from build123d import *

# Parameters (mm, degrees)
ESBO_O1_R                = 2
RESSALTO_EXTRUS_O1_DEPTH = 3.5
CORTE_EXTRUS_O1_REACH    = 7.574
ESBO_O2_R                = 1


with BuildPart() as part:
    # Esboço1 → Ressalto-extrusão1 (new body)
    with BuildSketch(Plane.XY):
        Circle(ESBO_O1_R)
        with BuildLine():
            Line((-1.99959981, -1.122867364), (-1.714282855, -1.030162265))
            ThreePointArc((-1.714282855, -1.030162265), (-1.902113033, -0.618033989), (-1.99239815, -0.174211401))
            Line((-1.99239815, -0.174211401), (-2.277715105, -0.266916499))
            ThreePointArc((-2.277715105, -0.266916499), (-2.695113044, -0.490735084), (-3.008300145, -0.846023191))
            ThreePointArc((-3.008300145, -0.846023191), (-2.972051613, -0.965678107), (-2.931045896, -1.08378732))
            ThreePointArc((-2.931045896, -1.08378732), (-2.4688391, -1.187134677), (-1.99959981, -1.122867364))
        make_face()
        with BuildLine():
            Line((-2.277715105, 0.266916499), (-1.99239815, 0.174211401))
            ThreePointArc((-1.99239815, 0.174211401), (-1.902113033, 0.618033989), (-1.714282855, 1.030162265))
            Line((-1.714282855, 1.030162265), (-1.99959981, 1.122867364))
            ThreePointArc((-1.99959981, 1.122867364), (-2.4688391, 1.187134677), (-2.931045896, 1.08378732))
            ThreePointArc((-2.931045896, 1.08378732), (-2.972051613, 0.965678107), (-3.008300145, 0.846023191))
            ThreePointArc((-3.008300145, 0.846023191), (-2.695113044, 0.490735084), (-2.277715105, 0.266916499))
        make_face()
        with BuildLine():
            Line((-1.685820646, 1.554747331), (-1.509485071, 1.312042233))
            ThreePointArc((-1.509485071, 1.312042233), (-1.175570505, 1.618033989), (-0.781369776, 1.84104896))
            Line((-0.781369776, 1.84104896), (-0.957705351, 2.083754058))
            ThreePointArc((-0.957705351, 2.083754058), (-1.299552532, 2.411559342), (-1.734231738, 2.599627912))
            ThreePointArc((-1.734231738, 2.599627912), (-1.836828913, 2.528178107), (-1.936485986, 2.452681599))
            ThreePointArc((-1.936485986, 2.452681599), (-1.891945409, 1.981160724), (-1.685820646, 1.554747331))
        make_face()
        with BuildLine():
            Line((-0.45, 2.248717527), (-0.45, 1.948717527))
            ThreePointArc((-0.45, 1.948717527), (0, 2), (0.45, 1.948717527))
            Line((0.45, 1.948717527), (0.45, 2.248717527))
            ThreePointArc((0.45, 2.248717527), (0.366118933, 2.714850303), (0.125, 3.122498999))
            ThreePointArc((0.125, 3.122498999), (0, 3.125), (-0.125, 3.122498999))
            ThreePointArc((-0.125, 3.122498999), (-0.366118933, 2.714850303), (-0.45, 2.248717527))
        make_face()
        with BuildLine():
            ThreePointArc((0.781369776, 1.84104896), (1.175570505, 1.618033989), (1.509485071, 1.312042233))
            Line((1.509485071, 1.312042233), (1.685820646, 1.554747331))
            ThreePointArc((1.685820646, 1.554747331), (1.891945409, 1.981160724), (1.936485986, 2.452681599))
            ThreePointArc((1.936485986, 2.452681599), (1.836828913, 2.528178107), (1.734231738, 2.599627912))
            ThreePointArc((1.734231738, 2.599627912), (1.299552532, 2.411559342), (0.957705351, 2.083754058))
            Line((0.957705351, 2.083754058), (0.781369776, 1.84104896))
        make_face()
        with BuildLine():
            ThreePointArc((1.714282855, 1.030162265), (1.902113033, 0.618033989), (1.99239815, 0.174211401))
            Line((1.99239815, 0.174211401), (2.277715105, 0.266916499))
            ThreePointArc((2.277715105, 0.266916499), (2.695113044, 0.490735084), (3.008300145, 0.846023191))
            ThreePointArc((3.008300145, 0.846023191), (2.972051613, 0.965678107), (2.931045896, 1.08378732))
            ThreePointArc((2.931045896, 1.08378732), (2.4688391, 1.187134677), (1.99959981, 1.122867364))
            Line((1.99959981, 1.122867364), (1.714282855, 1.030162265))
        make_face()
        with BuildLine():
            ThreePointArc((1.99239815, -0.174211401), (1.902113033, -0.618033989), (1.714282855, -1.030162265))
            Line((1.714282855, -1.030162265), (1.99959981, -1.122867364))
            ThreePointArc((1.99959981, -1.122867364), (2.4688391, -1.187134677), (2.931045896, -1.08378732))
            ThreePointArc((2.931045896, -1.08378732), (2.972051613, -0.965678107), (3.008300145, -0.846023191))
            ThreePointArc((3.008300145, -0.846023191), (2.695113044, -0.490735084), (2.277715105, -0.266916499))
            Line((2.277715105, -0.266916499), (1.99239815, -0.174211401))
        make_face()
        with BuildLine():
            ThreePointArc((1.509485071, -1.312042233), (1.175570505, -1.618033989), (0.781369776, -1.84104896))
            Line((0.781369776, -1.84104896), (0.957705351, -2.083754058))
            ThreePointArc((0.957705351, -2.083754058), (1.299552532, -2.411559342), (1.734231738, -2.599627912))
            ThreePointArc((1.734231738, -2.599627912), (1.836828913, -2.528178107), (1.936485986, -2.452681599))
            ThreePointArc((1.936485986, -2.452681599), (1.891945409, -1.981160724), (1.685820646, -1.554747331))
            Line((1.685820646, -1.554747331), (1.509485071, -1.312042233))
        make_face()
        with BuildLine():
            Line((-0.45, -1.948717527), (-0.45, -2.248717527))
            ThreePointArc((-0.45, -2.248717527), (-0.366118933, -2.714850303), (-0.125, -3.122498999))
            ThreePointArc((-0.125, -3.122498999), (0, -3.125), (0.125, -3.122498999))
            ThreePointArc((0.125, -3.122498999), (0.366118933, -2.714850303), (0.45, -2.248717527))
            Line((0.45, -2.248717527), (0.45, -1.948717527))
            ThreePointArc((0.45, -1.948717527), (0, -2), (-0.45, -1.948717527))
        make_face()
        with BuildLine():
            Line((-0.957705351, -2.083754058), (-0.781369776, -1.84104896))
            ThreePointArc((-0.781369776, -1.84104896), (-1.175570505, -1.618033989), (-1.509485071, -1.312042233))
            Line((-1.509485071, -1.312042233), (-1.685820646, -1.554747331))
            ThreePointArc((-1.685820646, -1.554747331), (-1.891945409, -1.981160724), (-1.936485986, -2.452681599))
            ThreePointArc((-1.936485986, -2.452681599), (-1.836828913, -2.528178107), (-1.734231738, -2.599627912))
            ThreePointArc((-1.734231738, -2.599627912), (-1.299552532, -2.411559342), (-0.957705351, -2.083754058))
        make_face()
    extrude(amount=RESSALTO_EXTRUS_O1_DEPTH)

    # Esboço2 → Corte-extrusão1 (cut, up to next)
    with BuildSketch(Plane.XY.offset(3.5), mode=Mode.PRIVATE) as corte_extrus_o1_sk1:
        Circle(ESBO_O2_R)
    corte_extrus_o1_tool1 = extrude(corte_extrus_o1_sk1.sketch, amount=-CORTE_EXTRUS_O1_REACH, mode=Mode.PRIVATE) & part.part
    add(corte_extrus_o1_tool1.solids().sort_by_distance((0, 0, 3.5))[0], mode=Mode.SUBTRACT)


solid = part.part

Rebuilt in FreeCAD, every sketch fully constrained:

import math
import FreeCAD as App
import Part
import Sketcher

V = App.Vector
Q = App.Units.Quantity

doc = App.newDocument("Part")
params = doc.addObject("Spreadsheet::Sheet", "Params")
for row, (alias, value) in enumerate([
    ("sketch1_radius", "2 mm"),
    ("sketch1_height", "0.3 mm"),
    ("sketch1_length", "0.3 mm"),
    ("pad1_length", "3.5 mm"),
    ("sketch2_diameter", "2 mm"),
], start=1):
    params.set(f"A{row}", alias)
    params.set(f"B{row}", "=" + value)
    params.setAlias(f"B{row}", alias)

body = doc.addObject("PartDesign::Body", "Body")

sketch1 = body.newObject("Sketcher::SketchObject", "Sketch")
sketch1.AttachmentSupport = (doc.getObject("XY_Plane"), [""])
sketch1.MapMode = "FlatFace"
sketch1.addGeometry([
    Part.LineSegment(V(-1.992398, -0.174211, 0), V(-2.277715, -0.266916, 0)),
    Part.ArcOfCircle(Part.Circle(V(-1.864527, -1.53858, 0), V(0, 0, 1), 1.337106), math.radians(108), math.radians(148.805021)),
    Part.ArcOfCircle(Part.Circle(V(0.000001, 0, 0), V(0, 0, 1), 3.125001), math.radians(-164.292442), math.radians(-159.707558)),
    Part.ArcOfCircle(Part.Circle(V(-2.412788, 0.148796, 0), V(0, 0, 1), 1.337106), math.radians(-112.805021), math.radians(-72)),
    Part.LineSegment(V(-1.9996, -1.122867, 0), V(-1.714283, -1.030162, 0)),
    Part.ArcOfCircle(Part.Circle(V(0, 0, 0), V(0, 0, 1), 2), math.radians(-148.997122), math.radians(-139.002878)),
    Part.LineSegment(V(-1.509485, -1.312042, 0), V(-1.685821, -1.554747, 0)),
    Part.ArcOfCircle(Part.Circle(V(-0.604079, -2.340679, 0), V(0, 0, 1), 1.337106), math.radians(144), math.radians(184.805021)),
    Part.ArcOfCircle(Part.Circle(V(0.000001, 0.000001, 0), V(0, 0, 1), 3.125001), math.radians(-128.292442), math.radians(-123.707558)),
    Part.ArcOfCircle(Part.Circle(V(-2.039447, -1.297823, 0), V(0, 0, 1), 1.337106), math.radians(-76.805021), math.radians(-36)),
    Part.LineSegment(V(-0.957705, -2.083754, 0), V(-0.78137, -1.841049, 0)),
    Part.ArcOfCircle(Part.Circle(V(0, 0, 0), V(0, 0, 1), 2), math.radians(-112.997122), math.radians(-103.002878)),
    Part.LineSegment(V(-0.45, -1.948718, 0), V(-0.45, -2.248718, 0)),
    Part.ArcOfCircle(Part.Circle(V(0.887106, -2.248718, 0), V(0, 0, 1), 1.337106), math.radians(180), math.radians(220.805021)),
    Part.ArcOfCircle(Part.Circle(V(0, 0, 0), V(0, 0, 1), 3.125), math.radians(-92.292443), math.radians(-87.707557)),
    Part.ArcOfCircle(Part.Circle(V(-0.887106, -2.248718, 0), V(0, 0, 1), 1.337106), math.radians(-40.805021), math.radians(0)),
    Part.LineSegment(V(0.45, -2.248718, 0), V(0.45, -1.948718, 0)),
    Part.ArcOfCircle(Part.Circle(V(0, 0, 0), V(0, 0, 1), 2), math.radians(-76.997122), math.radians(-67.002878)),
    Part.LineSegment(V(0.78137, -1.841049, 0), V(0.957705, -2.083754, 0)),
    Part.ArcOfCircle(Part.Circle(V(2.039447, -1.297823, 0), V(0, 0, 1), 1.337106), math.radians(-144), math.radians(-103.194979)),
    Part.ArcOfCircle(Part.Circle(V(-0.000001, 0.000001, 0), V(0, 0, 1), 3.125001), math.radians(-56.292442), math.radians(-51.707558)),
    Part.ArcOfCircle(Part.Circle(V(0.604079, -2.340679, 0), V(0, 0, 1), 1.337106), math.radians(-4.805021), math.radians(36)),
    Part.LineSegment(V(1.685821, -1.554747, 0), V(1.509485, -1.312042, 0)),
    Part.ArcOfCircle(Part.Circle(V(0, 0, 0), V(0, 0, 1), 2), math.radians(-40.997122), math.radians(-31.002878)),
    Part.LineSegment(V(1.714283, -1.030162, 0), V(1.9996, -1.122867, 0)),
    Part.ArcOfCircle(Part.Circle(V(2.412788, 0.148796, 0), V(0, 0, 1), 1.337106), math.radians(-108), math.radians(-67.194979)),
    Part.ArcOfCircle(Part.Circle(V(-0.000001, 0, 0), V(0, 0, 1), 3.125001), math.radians(-20.292442), math.radians(-15.707558)),
    Part.ArcOfCircle(Part.Circle(V(1.864527, -1.53858, 0), V(0, 0, 1), 1.337106), math.radians(31.194979), math.radians(72)),
    Part.LineSegment(V(2.277715, -0.266916, 0), V(1.992398, -0.174211, 0)),
    Part.ArcOfCircle(Part.Circle(V(0, 0, 0), V(0, 0, 1), 2), math.radians(-4.997122), math.radians(4.997122)),
    Part.LineSegment(V(1.992398, 0.174211, 0), V(2.277715, 0.266916, 0)),
    Part.ArcOfCircle(Part.Circle(V(1.864527, 1.53858, 0), V(0, 0, 1), 1.337106), math.radians(-72), math.radians(-31.194979)),
    Part.ArcOfCircle(Part.Circle(V(-0.000001, 0, 0), V(0, 0, 1), 3.125001), math.radians(15.707558), math.radians(20.292442)),
    Part.ArcOfCircle(Part.Circle(V(2.412788, -0.148796, 0), V(0, 0, 1), 1.337106), math.radians(67.194979), math.radians(108)),
    Part.LineSegment(V(1.9996, 1.122867, 0), V(1.714283, 1.030162, 0)),
    Part.ArcOfCircle(Part.Circle(V(0, 0, 0), V(0, 0, 1), 2), math.radians(31.002878), math.radians(40.997122)),
    Part.LineSegment(V(1.509485, 1.312042, 0), V(1.685821, 1.554747, 0)),
    Part.ArcOfCircle(Part.Circle(V(0.604079, 2.340679, 0), V(0, 0, 1), 1.337106), math.radians(-36), math.radians(4.805021)),
    Part.ArcOfCircle(Part.Circle(V(-0.000001, -0.000001, 0), V(0, 0, 1), 3.125001), math.radians(51.707558), math.radians(56.292442)),
    Part.ArcOfCircle(Part.Circle(V(2.039447, 1.297823, 0), V(0, 0, 1), 1.337106), math.radians(103.194979), math.radians(144)),
    Part.LineSegment(V(0.957705, 2.083754, 0), V(0.78137, 1.841049, 0)),
    Part.ArcOfCircle(Part.Circle(V(0, 0, 0), V(0, 0, 1), 2), math.radians(67.002878), math.radians(76.997122)),
    Part.LineSegment(V(0.45, 1.948718, 0), V(0.45, 2.248718, 0)),
    Part.ArcOfCircle(Part.Circle(V(-0.887106, 2.248718, 0), V(0, 0, 1), 1.337106), math.radians(0), math.radians(40.805021)),
    Part.ArcOfCircle(Part.Circle(V(0, 0, 0), V(0, 0, 1), 3.125), math.radians(87.707557), math.radians(92.292443)),
    Part.ArcOfCircle(Part.Circle(V(0.887106, 2.248718, 0), V(0, 0, 1), 1.337106), math.radians(139.194979), math.radians(180)),
    Part.LineSegment(V(-0.45, 2.248718, 0), V(-0.45, 1.948718, 0)),
    Part.ArcOfCircle(Part.Circle(V(0, 0, 0), V(0, 0, 1), 2), math.radians(103.002878), math.radians(112.997122)),
    Part.LineSegment(V(-0.78137, 1.841049, 0), V(-0.957705, 2.083754, 0)),
    Part.ArcOfCircle(Part.Circle(V(-2.039447, 1.297823, 0), V(0, 0, 1), 1.337106), math.radians(36), math.radians(76.805021)),
    Part.ArcOfCircle(Part.Circle(V(0.000001, -0.000001, 0), V(0, 0, 1), 3.125001), math.radians(123.707558), math.radians(128.292442)),
    Part.ArcOfCircle(Part.Circle(V(-0.604079, 2.340679, 0), V(0, 0, 1), 1.337106), math.radians(175.194979), math.radians(216)),
    Part.LineSegment(V(-1.685821, 1.554747, 0), V(-1.509485, 1.312042, 0)),
    Part.ArcOfCircle(Part.Circle(V(0, 0, 0), V(0, 0, 1), 2), math.radians(139.002878), math.radians(148.997122)),
    Part.LineSegment(V(-1.714283, 1.030162, 0), V(-1.9996, 1.122867, 0)),
    Part.ArcOfCircle(Part.Circle(V(-2.412788, -0.148796, 0), V(0, 0, 1), 1.337106), math.radians(72), math.radians(112.805021)),
    Part.ArcOfCircle(Part.Circle(V(0.000001, 0, 0), V(0, 0, 1), 3.125001), math.radians(159.707558), math.radians(164.292442)),
    Part.ArcOfCircle(Part.Circle(V(-1.864527, 1.53858, 0), V(0, 0, 1), 1.337106), math.radians(-148.805021), math.radians(-108)),
    Part.LineSegment(V(-2.277715, 0.266916, 0), V(-1.992398, 0.174211, 0)),
    Part.ArcOfCircle(Part.Circle(V(0, 0, 0), V(0, 0, 1), 2), math.radians(175.002878), math.radians(184.997122)),
], False)
sketch1.addConstraint([
    Sketcher.Constraint("Tangent", 0, 2, 1, 1),
    Sketcher.Constraint("Coincident", 1, 2, 2, 1),
    Sketcher.Constraint("Coincident", 2, 2, 3, 1),
    Sketcher.Constraint("Tangent", 3, 2, 4, 1),
    Sketcher.Constraint("Coincident", 4, 2, 5, 1),
    Sketcher.Constraint("Coincident", 5, 2, 6, 1),
    Sketcher.Constraint("Tangent", 6, 2, 7, 1),
    Sketcher.Constraint("Coincident", 7, 2, 8, 1),
    Sketcher.Constraint("Coincident", 8, 2, 9, 1),
    Sketcher.Constraint("Tangent", 9, 2, 10, 1),
    Sketcher.Constraint("Coincident", 10, 2, 11, 1),
    Sketcher.Constraint("Coincident", 11, 2, 12, 1),
    Sketcher.Constraint("Tangent", 12, 2, 13, 1),
    Sketcher.Constraint("Coincident", 13, 2, 14, 1),
    Sketcher.Constraint("Coincident", 14, 2, 15, 1),
    Sketcher.Constraint("Tangent", 15, 2, 16, 1),
    Sketcher.Constraint("Coincident", 16, 2, 17, 1),
    Sketcher.Constraint("Coincident", 17, 2, 18, 1),
    Sketcher.Constraint("Tangent", 18, 2, 19, 1),
    Sketcher.Constraint("Coincident", 19, 2, 20, 1),
    Sketcher.Constraint("Coincident", 20, 2, 21, 1),
    Sketcher.Constraint("Tangent", 21, 2, 22, 1),
    Sketcher.Constraint("Coincident", 22, 2, 23, 1),
    Sketcher.Constraint("Coincident", 23, 2, 24, 1),
    Sketcher.Constraint("Tangent", 24, 2, 25, 1),
    Sketcher.Constraint("Coincident", 25, 2, 26, 1),
    Sketcher.Constraint("Coincident", 26, 2, 27, 1),
    Sketcher.Constraint("Tangent", 27, 2, 28, 1),
    Sketcher.Constraint("Coincident", 28, 2, 29, 1),
    Sketcher.Constraint("Coincident", 29, 2, 30, 1),
    Sketcher.Constraint("Tangent", 30, 2, 31, 1),
    Sketcher.Constraint("Coincident", 31, 2, 32, 1),
    Sketcher.Constraint("Coincident", 32, 2, 33, 1),
    Sketcher.Constraint("Tangent", 33, 2, 34, 1),
    Sketcher.Constraint("Coincident", 34, 2, 35, 1),
    Sketcher.Constraint("Coincident", 35, 2, 36, 1),
    Sketcher.Constraint("Tangent", 36, 2, 37, 1),
    Sketcher.Constraint("Coincident", 37, 2, 38, 1),
    Sketcher.Constraint("Coincident", 38, 2, 39, 1),
    Sketcher.Constraint("Tangent", 39, 2, 40, 1),
    Sketcher.Constraint("Coincident", 40, 2, 41, 1),
    Sketcher.Constraint("Coincident", 41, 2, 42, 1),
    Sketcher.Constraint("Tangent", 42, 2, 43, 1),
    Sketcher.Constraint("Coincident", 43, 2, 44, 1),
    Sketcher.Constraint("Coincident", 44, 2, 45, 1),
    Sketcher.Constraint("Tangent", 45, 2, 46, 1),
    Sketcher.Constraint("Coincident", 46, 2, 47, 1),
    Sketcher.Constraint("Coincident", 47, 2, 48, 1),
    Sketcher.Constraint("Tangent", 48, 2, 49, 1),
    Sketcher.Constraint("Coincident", 49, 2, 50, 1),
    Sketcher.Constraint("Coincident", 50, 2, 51, 1),
    Sketcher.Constraint("Tangent", 51, 2, 52, 1),
    Sketcher.Constraint("Coincident", 52, 2, 53, 1),
    Sketcher.Constraint("Coincident", 53, 2, 54, 1),
    Sketcher.Constraint("Tangent", 54, 2, 55, 1),
    Sketcher.Constraint("Coincident", 55, 2, 56, 1),
    Sketcher.Constraint("Coincident", 56, 2, 57, 1),
    Sketcher.Constraint("Tangent", 57, 2, 58, 1),
    Sketcher.Constraint("Coincident", 58, 2, 59, 1),
    Sketcher.Constraint("Coincident", 59, 2, 0, 1),
    Sketcher.Constraint("Vertical", 12),
    Sketcher.Constraint("Vertical", 16),
    Sketcher.Constraint("Vertical", 42),
    Sketcher.Constraint("Vertical", 46),
    Sketcher.Constraint("Coincident", 2, 3, -1, 1),
    Sketcher.Constraint("Coincident", 5, 3, -1, 1),
    Sketcher.Constraint("Coincident", 8, 3, -1, 1),
    Sketcher.Constraint("Coincident", 11, 3, -1, 1),
    Sketcher.Constraint("Coincident", 14, 3, -1, 1),
    Sketcher.Constraint("Coincident", 17, 3, -1, 1),
    Sketcher.Constraint("Coincident", 20, 3, -1, 1),
    Sketcher.Constraint("Coincident", 23, 3, -1, 1),
    Sketcher.Constraint("Coincident", 26, 3, -1, 1),
    Sketcher.Constraint("Coincident", 29, 3, -1, 1),
    Sketcher.Constraint("Coincident", 32, 3, -1, 1),
    Sketcher.Constraint("Coincident", 35, 3, -1, 1),
    Sketcher.Constraint("Coincident", 38, 3, -1, 1),
    Sketcher.Constraint("Coincident", 41, 3, -1, 1),
    Sketcher.Constraint("Coincident", 44, 3, -1, 1),
    Sketcher.Constraint("Coincident", 47, 3, -1, 1),
    Sketcher.Constraint("Coincident", 50, 3, -1, 1),
    Sketcher.Constraint("Coincident", 53, 3, -1, 1),
    Sketcher.Constraint("Coincident", 56, 3, -1, 1),
    Sketcher.Constraint("Coincident", 59, 3, -1, 1),
    Sketcher.Constraint("Equal", 1, 3),
    Sketcher.Constraint("Equal", 3, 7),
    Sketcher.Constraint("Equal", 2, 8),
    Sketcher.Constraint("Equal", 7, 9),
    Sketcher.Constraint("Equal", 5, 11),
    Sketcher.Constraint("Equal", 9, 13),
    Sketcher.Constraint("Equal", 8, 14),
    Sketcher.Constraint("Equal", 13, 15),
    Sketcher.Constraint("Equal", 11, 17),
    Sketcher.Constraint("Equal", 15, 19),
    Sketcher.Constraint("Equal", 14, 20),
    Sketcher.Constraint("Equal", 19, 21),
    Sketcher.Constraint("Equal", 17, 23),
    Sketcher.Constraint("Equal", 21, 25),
    Sketcher.Constraint("Equal", 20, 26),
    Sketcher.Constraint("Equal", 25, 27),
    Sketcher.Constraint("Equal", 23, 29),
    Sketcher.Constraint("Equal", 27, 31),
    Sketcher.Constraint("Equal", 26, 32),
    Sketcher.Constraint("Equal", 31, 33),
    Sketcher.Constraint("Equal", 29, 35),
    Sketcher.Constraint("Equal", 33, 37),
    Sketcher.Constraint("Equal", 32, 38),
    Sketcher.Constraint("Equal", 37, 39),
    Sketcher.Constraint("Equal", 35, 41),
    Sketcher.Constraint("Equal", 39, 43),
    Sketcher.Constraint("Equal", 38, 44),
    Sketcher.Constraint("Equal", 43, 45),
    Sketcher.Constraint("Equal", 41, 47),
    Sketcher.Constraint("Equal", 45, 49),
    Sketcher.Constraint("Equal", 44, 50),
    Sketcher.Constraint("Equal", 49, 51),
    Sketcher.Constraint("Equal", 47, 53),
    Sketcher.Constraint("Equal", 51, 55),
    Sketcher.Constraint("Equal", 50, 56),
    Sketcher.Constraint("Equal", 55, 57),
    Sketcher.Constraint("Equal", 53, 59),
    Sketcher.Constraint("Symmetric", 1, 3, 31, 3, -1, 1),
    Sketcher.Constraint("Symmetric", 3, 3, 33, 3, -1, 1),
    Sketcher.Constraint("Symmetric", 7, 3, 37, 3, -1, 1),
    Sketcher.Constraint("Symmetric", 9, 3, 39, 3, -1, 1),
    Sketcher.Constraint("Symmetric", 13, 3, 43, 3, -1, 1),
    Sketcher.Constraint("Symmetric", 15, 3, 45, 3, -1, 1),
    Sketcher.Constraint("Symmetric", 19, 3, 49, 3, -1, 1),
    Sketcher.Constraint("Symmetric", 21, 3, 51, 3, -1, 1),
    Sketcher.Constraint("Symmetric", 25, 3, 55, 3, -1, 1),
    Sketcher.Constraint("Symmetric", 27, 3, 57, 3, -1, 1),
    Sketcher.Constraint("Symmetric", 13, 3, 15, 3, -2),
    Sketcher.Constraint("Symmetric", 9, 3, 19, 3, -2),
    Sketcher.Constraint("Symmetric", 7, 3, 21, 3, -2),
    Sketcher.Constraint("Symmetric", 3, 3, 25, 3, -2),
    Sketcher.Constraint("Symmetric", 1, 3, 27, 3, -2),
    Sketcher.Constraint("Parallel", 0, 4),
    Sketcher.Constraint("Parallel", 6, 10),
    Sketcher.Constraint("Parallel", 18, 22),
    Sketcher.Constraint("Parallel", 24, 28),
    Sketcher.Constraint("Parallel", 4, 30),
    Sketcher.Constraint("Parallel", 30, 34),
    Sketcher.Constraint("Parallel", 10, 36),
    Sketcher.Constraint("Parallel", 36, 40),
    Sketcher.Constraint("Parallel", 22, 48),
    Sketcher.Constraint("Parallel", 48, 52),
    Sketcher.Constraint("Parallel", 28, 54),
    Sketcher.Constraint("Parallel", 54, 58),
    Sketcher.Constraint("Horizontal", 10, 2, 17, 2),
    Sketcher.Constraint("Horizontal", 4, 2, 23, 2),
    Sketcher.Constraint("Equal", 0, 4),
    Sketcher.Constraint("Equal", 4, 6),
    Sketcher.Constraint("Equal", 6, 10),
    Sketcher.Constraint("Radius", 5, Q("2 mm")),
    Sketcher.Constraint("Angle", 0, Q("-162 deg")),
    Sketcher.Constraint("Angle", 6, Q("-126 deg")),
    Sketcher.Constraint("DistanceY", 12, 2, 12, 1, Q("0.3 mm")),
    Sketcher.Constraint("Radius", 2, Q("3.125001 mm")),
    Sketcher.Constraint("Distance", 0, Q("0.3 mm")),
    Sketcher.Constraint("DistanceX", 11, 2, -1, 1, Q("0.45 mm")),
    Sketcher.Constraint("DistanceX", 13, 2, -1, 1, Q("0.125 mm")),
    Sketcher.Constraint("DistanceX", 1, 2, -1, 1, Q("3.0083 mm")),
    Sketcher.Constraint("DistanceX", 3, 2, -1, 1, Q("1.9996 mm")),
    Sketcher.Constraint("DistanceX", 7, 3, -1, 1, Q("0.604079 mm")),
    Sketcher.Constraint("DistanceX", 8, 2, -1, 1, Q("1.734232 mm")),
])
sketch1.setExpression("Constraints[153]", "Params.sketch1_radius")
sketch1.setExpression("Constraints[156]", "Params.sketch1_height")
sketch1.setExpression("Constraints[158]", "Params.sketch1_length")
pad1 = body.newObject("PartDesign::Pad", "Pad")
pad1.Profile = sketch1
pad1.setExpression("Length", "Params.pad1_length")

sketch2 = body.newObject("Sketcher::SketchObject", "Sketch001")
sketch2.AttachmentSupport = (doc.getObject("XY_Plane"), [""])
sketch2.MapMode = "FlatFace"
sketch2.AttachmentOffset = App.Placement(V(0, 0, 3.5), App.Rotation())
sketch2.addGeometry(Part.Circle(V(0, 0, 0), V(0, 0, 1), 1), False)
sketch2.addConstraint([
    Sketcher.Constraint("Coincident", 0, 3, -1, 1),
    Sketcher.Constraint("Diameter", 0, Q("2 mm")),
])
sketch2.setExpression("Constraints[1]", "Params.sketch2_diameter")
pocket1 = body.newObject("PartDesign::Pocket", "Pocket")
pocket1.Profile = sketch2
pocket1.Type = "UpToFirst"

doc.recompute()
